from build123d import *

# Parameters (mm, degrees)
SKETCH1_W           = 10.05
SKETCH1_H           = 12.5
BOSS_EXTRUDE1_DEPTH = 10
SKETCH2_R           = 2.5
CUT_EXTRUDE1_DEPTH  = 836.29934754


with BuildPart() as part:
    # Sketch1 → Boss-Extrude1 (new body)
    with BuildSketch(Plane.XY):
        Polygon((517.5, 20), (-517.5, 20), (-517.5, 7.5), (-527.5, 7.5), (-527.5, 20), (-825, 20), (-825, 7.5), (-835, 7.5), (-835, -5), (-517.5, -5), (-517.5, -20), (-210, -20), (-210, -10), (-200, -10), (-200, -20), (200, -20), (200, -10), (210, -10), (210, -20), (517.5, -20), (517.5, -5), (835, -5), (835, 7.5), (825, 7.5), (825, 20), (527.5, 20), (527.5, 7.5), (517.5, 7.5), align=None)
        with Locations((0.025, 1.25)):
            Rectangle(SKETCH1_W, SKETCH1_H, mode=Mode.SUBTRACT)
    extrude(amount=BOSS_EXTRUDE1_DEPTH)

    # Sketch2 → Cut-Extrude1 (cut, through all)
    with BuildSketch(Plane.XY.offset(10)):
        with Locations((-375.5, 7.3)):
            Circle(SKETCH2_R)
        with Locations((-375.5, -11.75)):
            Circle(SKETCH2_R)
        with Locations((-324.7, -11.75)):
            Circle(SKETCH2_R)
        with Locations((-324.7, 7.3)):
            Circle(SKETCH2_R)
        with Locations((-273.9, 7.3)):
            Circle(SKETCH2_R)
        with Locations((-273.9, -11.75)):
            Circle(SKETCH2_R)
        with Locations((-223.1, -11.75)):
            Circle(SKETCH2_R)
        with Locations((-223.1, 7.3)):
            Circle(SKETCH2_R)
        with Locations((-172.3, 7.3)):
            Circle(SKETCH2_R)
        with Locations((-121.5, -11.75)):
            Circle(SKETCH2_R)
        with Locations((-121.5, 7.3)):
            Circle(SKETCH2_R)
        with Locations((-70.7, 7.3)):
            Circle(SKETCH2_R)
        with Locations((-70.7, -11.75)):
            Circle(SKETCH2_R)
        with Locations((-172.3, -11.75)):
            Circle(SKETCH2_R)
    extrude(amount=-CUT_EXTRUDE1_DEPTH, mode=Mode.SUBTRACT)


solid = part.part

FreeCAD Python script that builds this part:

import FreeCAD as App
import Part
import Sketcher
Q = App.Units.Quantity

doc = App.newDocument("Part")
body = doc.addObject("PartDesign::Body", "Body")

# Sketch on XY plane
sketch1 = body.newObject("Sketcher::SketchObject", "Sketch")
sketch1.AttachmentSupport = (doc.getObject("XY_Plane"), [""])
sketch1.MapMode = "FlatFace"
sketch1.addGeometry([
    Part.LineSegment(App.Vector(518, 20, 0), App.Vector(-518, 20, 0)),  # 0
    Part.LineSegment(App.Vector(-518, 20, 0), App.Vector(-518, 8, 0)),  # 1
    Part.LineSegment(App.Vector(-518, 8, 0), App.Vector(-528, 8, 0)),  # 2
    Part.LineSegment(App.Vector(-528, 8, 0), App.Vector(-528, 20, 0)),  # 3
    Part.LineSegment(App.Vector(-528, 20, 0), App.Vector(-825, 20, 0)),  # 4
    Part.LineSegment(App.Vector(-825, 20, 0), App.Vector(-825, 8, 0)),  # 5
    Part.LineSegment(App.Vector(-825, 8, 0), App.Vector(-835, 8, 0)),  # 6
    Part.LineSegment(App.Vector(-835, 8, 0), App.Vector(-835, -5, 0)),  # 7
    Part.LineSegment(App.Vector(-835, -5, 0), App.Vector(-518, -5, 0)),  # 8
    Part.LineSegment(App.Vector(-518, -5, 0), App.Vector(-518, -20, 0)),  # 9
    Part.LineSegment(App.Vector(-518, -20, 0), App.Vector(-210, -20, 0)),  # 10
    Part.LineSegment(App.Vector(-210, -20, 0), App.Vector(-210, -10, 0)),  # 11
    Part.LineSegment(App.Vector(-210, -10, 0), App.Vector(-200, -10, 0)),  # 12
    Part.LineSegment(App.Vector(-200, -10, 0), App.Vector(-200, -20, 0)),  # 13
    Part.LineSegment(App.Vector(-200, -20, 0), App.Vector(200, -20, 0)),  # 14
    Part.LineSegment(App.Vector(200, -20, 0), App.Vector(200, -10, 0)),  # 15
    Part.LineSegment(App.Vector(200, -10, 0), App.Vector(210, -10, 0)),  # 16
    Part.LineSegment(App.Vector(210, -10, 0), App.Vector(210, -20, 0)),  # 17
    Part.LineSegment(App.Vector(210, -20, 0), App.Vector(518, -20, 0)),  # 18
    Part.LineSegment(App.Vector(518, -20, 0), App.Vector(518, -5, 0)),  # 19
    Part.LineSegment(App.Vector(518, -5, 0), App.Vector(835, -5, 0)),  # 20
    Part.LineSegment(App.Vector(835, -5, 0), App.Vector(835, 8, 0)),  # 21
    Part.LineSegment(App.Vector(835, 8, 0), App.Vector(825, 8, 0)),  # 22
    Part.LineSegment(App.Vector(825, 8, 0), App.Vector(825, 20, 0)),  # 23
    Part.LineSegment(App.Vector(825, 20, 0), App.Vector(528, 20, 0)),  # 24
    Part.LineSegment(App.Vector(528, 20, 0), App.Vector(528, 8, 0)),  # 25
    Part.LineSegment(App.Vector(528, 8, 0), App.Vector(518, 8, 0)),  # 26
    Part.LineSegment(App.Vector(518, 8, 0), App.Vector(518, 20, 0)),  # 27
    Part.LineSegment(App.Vector(5, -5, 0), App.Vector(-5, -5, 0)),  # 28
    Part.LineSegment(App.Vector(-5, -5, 0), App.Vector(-5, 8, 0)),  # 29
    Part.LineSegment(App.Vector(-5, 8, 0), App.Vector(5, 8, 0)),  # 30
    Part.LineSegment(App.Vector(5, 8, 0), App.Vector(5, -5, 0)),  # 31
], False)
sketch1.addConstraint([
    Sketcher.Constraint("Coincident", 0, 2, 1, 1),
    Sketcher.Constraint("Coincident", 1, 2, 2, 1),
    Sketcher.Constraint("Coincident", 2, 2, 3, 1),
    Sketcher.Constraint("Coincident", 3, 2, 4, 1),
    Sketcher.Constraint("Coincident", 4, 2, 5, 1),
    Sketcher.Constraint("Coincident", 5, 2, 6, 1),
    Sketcher.Constraint("Coincident", 6, 2, 7, 1),
    Sketcher.Constraint("Coincident", 7, 2, 8, 1),
    Sketcher.Constraint("Coincident", 8, 2, 9, 1),
    Sketcher.Constraint("Coincident", 9, 2, 10, 1),
    Sketcher.Constraint("Coincident", 10, 2, 11, 1),
    Sketcher.Constraint("Coincident", 11, 2, 12, 1),
    Sketcher.Constraint("Coincident", 12, 2, 13, 1),
    Sketcher.Constraint("Coincident", 13, 2, 14, 1),
    Sketcher.Constraint("Coincident", 14, 2, 15, 1),
    Sketcher.Constraint("Coincident", 15, 2, 16, 1),
    Sketcher.Constraint("Coincident", 16, 2, 17, 1),
    Sketcher.Constraint("Coincident", 17, 2, 18, 1),
    Sketcher.Constraint("Coincident", 18, 2, 19, 1),
    Sketcher.Constraint("Coincident", 19, 2, 20, 1),
    Sketcher.Constraint("Coincident", 20, 2, 21, 1),
    Sketcher.Constraint("Coincident", 21, 2, 22, 1),
    Sketcher.Constraint("Coincident", 22, 2, 23, 1),
    Sketcher.Constraint("Coincident", 23, 2, 24, 1),
    Sketcher.Constraint("Coincident", 24, 2, 25, 1),
    Sketcher.Constraint("Coincident", 25, 2, 26, 1),
    Sketcher.Constraint("Coincident", 26, 2, 27, 1),
    Sketcher.Constraint("Coincident", 27, 2, 0, 1),
    Sketcher.Constraint("Coincident", 28, 2, 29, 1),
    Sketcher.Constraint("Coincident", 29, 2, 30, 1),
    Sketcher.Constraint("Coincident", 30, 2, 31, 1),
    Sketcher.Constraint("Coincident", 31, 2, 28, 1),
    Sketcher.Constraint("Horizontal", 0),
    Sketcher.Constraint("Vertical", 1),
    Sketcher.Constraint("Horizontal", 2),
    Sketcher.Constraint("Vertical", 3),
    Sketcher.Constraint("Horizontal", 4),
    Sketcher.Constraint("Vertical", 5),
    Sketcher.Constraint("Horizontal", 6),
    Sketcher.Constraint("Vertical", 7),
    Sketcher.Constraint("Horizontal", 8),
    Sketcher.Constraint("Vertical", 9),
    Sketcher.Constraint("Horizontal", 10),
    Sketcher.Constraint("Vertical", 11),
    Sketcher.Constraint("Horizontal", 12),
    Sketcher.Constraint("Vertical", 13),
    Sketcher.Constraint("Horizontal", 14),
    Sketcher.Constraint("Vertical", 15),
    Sketcher.Constraint("Horizontal", 16),
    Sketcher.Constraint("Vertical", 17),
    Sketcher.Constraint("Horizontal", 18),
    Sketcher.Constraint("Vertical", 19),
    Sketcher.Constraint("Horizontal", 20),
    Sketcher.Constraint("Vertical", 21),
    Sketcher.Constraint("Horizontal", 22),
    Sketcher.Constraint("Vertical", 23),
    Sketcher.Constraint("Horizontal", 24),
    Sketcher.Constraint("Vertical", 25),
    Sketcher.Constraint("Horizontal", 26),
    Sketcher.Constraint("Vertical", 27),
    Sketcher.Constraint("Horizontal", 28),
    Sketcher.Constraint("Vertical", 29),
    Sketcher.Constraint("Horizontal", 30),
    Sketcher.Constraint("Vertical", 31),
    Sketcher.Constraint("Symmetric", 0, 2, 18, 2, -1, 1),
    Sketcher.Constraint("Symmetric", 9, 2, 27, 2, -1, 1),
    Sketcher.Constraint("Symmetric", 12, 2, 15, 2, -2),
    Sketcher.Constraint("Symmetric", 8, 2, 19, 2, -2),
    Sketcher.Constraint("Symmetric", 6, 2, 21, 2, -2),
    Sketcher.Constraint("Symmetric", 4, 2, 23, 2, -2),
    Sketcher.Constraint("Symmetric", 2, 2, 25, 2, -2),
    Sketcher.Constraint("Horizontal", 0, 2, 3, 2),
    Sketcher.Constraint("Horizontal", 2, 2, 5, 2),
    Sketcher.Constraint("Horizontal", 10, 2, 13, 2),
    Sketcher.Constraint("Horizontal", 20, 2, 28, 2),
    Sketcher.Constraint("Horizontal", 26, 2, 29, 2),
    Sketcher.Constraint("Equal", 2, 6),
    Sketcher.Constraint("Equal", 6, 12),
    Sketcher.Constraint("Equal", 12, 16),
    Sketcher.Constraint("Equal", 5, 7),
    Sketcher.Constraint("Equal", 26, 11),
    Sketcher.Constraint("DistanceX", 0, 2, 0, 1, Q("1035 mm")),
    Sketcher.Constraint("DistanceX", 2, 2, 2, 1, Q("10 mm")),
    Sketcher.Constraint("DistanceX", 14, 1, 14, 2, Q("400 mm")),
    Sketcher.Constraint("DistanceY", 9, 2, 9, 1, Q("15 mm")),
    Sketcher.Constraint("DistanceX", 4, 2, 4, 1, Q("297.5 mm")),
    Sketcher.Constraint("DistanceY", 1, 2, 1, 1, Q("12.5 mm")),
    Sketcher.Constraint("DistanceX", 28, 2, -1, 1, Q("5 mm")),
    Sketcher.Constraint("DistanceX", 28, 2, 28, 1, Q("10.05 mm")),
])
pad1 = body.newObject("PartDesign::Pad", "Pad")
pad1.Profile = sketch1
pad1.Length = 10

# Sketch on XY plane
sketch2 = body.newObject("Sketcher::SketchObject", "Sketch001")
sketch2.AttachmentSupport = (doc.getObject("XY_Plane"), [""])
sketch2.MapMode = "FlatFace"
sketch2.AttachmentOffset = App.Placement(App.Vector(0, 0, 10), App.Rotation())
sketch2.addGeometry([
    Part.Circle(App.Vector(-375.5, 7.3, 0), App.Vector(0, 0, 1), 2.5),  # 0
    Part.Circle(App.Vector(-375.5, -11.8, 0), App.Vector(0, 0, 1), 2.5),  # 1
    Part.Circle(App.Vector(-324.7, -11.8, 0), App.Vector(0, 0, 1), 2.5),  # 2
    Part.Circle(App.Vector(-324.7, 7.3, 0), App.Vector(0, 0, 1), 2.5),  # 3
    Part.Circle(App.Vector(-273.9, 7.3, 0), App.Vector(0, 0, 1), 2.5),  # 4
    Part.Circle(App.Vector(-273.9, -11.8, 0), App.Vector(0, 0, 1), 2.5),  # 5
    Part.Circle(App.Vector(-223.1, -11.8, 0), App.Vector(0, 0, 1), 2.5),  # 6
    Part.Circle(App.Vector(-223.1, 7.3, 0), App.Vector(0, 0, 1), 2.5),  # 7
    Part.Circle(App.Vector(-172.3, 7.3, 0), App.Vector(0, 0, 1), 2.5),  # 8
    Part.Circle(App.Vector(-121.5, -11.8, 0), App.Vector(0, 0, 1), 2.5),  # 9
    Part.Circle(App.Vector(-121.5, 7.3, 0), App.Vector(0, 0, 1), 2.5),  # 10
    Part.Circle(App.Vector(-70.7, 7.3, 0), App.Vector(0, 0, 1), 2.5),  # 11
    Part.Circle(App.Vector(-70.7, -11.8, 0), App.Vector(0, 0, 1), 2.5),  # 12
    Part.Circle(App.Vector(-172.3, -11.8, 0), App.Vector(0, 0, 1), 2.5),  # 13
], False)
sketch2.addConstraint([
    Sketcher.Constraint("Equal", 0, 1),
    Sketcher.Constraint("Equal", 1, 2),
    Sketcher.Constraint("Equal", 2, 3),
    Sketcher.Constraint("Equal", 3, 4),
    Sketcher.Constraint("Equal", 4, 5),
    Sketcher.Constraint("Equal", 5, 6),
    Sketcher.Constraint("Equal", 6, 7),
    Sketcher.Constraint("Equal", 7, 8),
    Sketcher.Constraint("Equal", 8, 9),
    Sketcher.Constraint("Equal", 9, 10),
    Sketcher.Constraint("Equal", 10, 11),
    Sketcher.Constraint("Equal", 11, 12),
    Sketcher.Constraint("Equal", 12, 13),
    Sketcher.Constraint("Horizontal", 1, 3, 2, 3),
    Sketcher.Constraint("Horizontal", 0, 3, 3, 3),
    Sketcher.Constraint("Horizontal", 3, 3, 4, 3),
    Sketcher.Constraint("Horizontal", 2, 3, 5, 3),
    Sketcher.Constraint("Horizontal", 5, 3, 6, 3),
    Sketcher.Constraint("Horizontal", 4, 3, 7, 3),
    Sketcher.Constraint("Horizontal", 7, 3, 8, 3),
    Sketcher.Constraint("Horizontal", 6, 3, 9, 3),
    Sketcher.Constraint("Horizontal", 8, 3, 10, 3),
    Sketcher.Constraint("Horizontal", 10, 3, 11, 3),
    Sketcher.Constraint("Horizontal", 9, 3, 12, 3),
    Sketcher.Constraint("Horizontal", 12, 3, 13, 3),
    Sketcher.Constraint("Vertical", 0, 3, 1, 3),
    Sketcher.Constraint("Vertical", 2, 3, 3, 3),
    Sketcher.Constraint("Vertical", 4, 3, 5, 3),
    Sketcher.Constraint("Vertical", 6, 3, 7, 3),
    Sketcher.Constraint("Vertical", 9, 3, 10, 3),
    Sketcher.Constraint("Vertical", 11, 3, 12, 3),
    Sketcher.Constraint("Vertical", 8, 3, 13, 3),
    Sketcher.Constraint("Diameter", 0, Q("5 mm")),
    Sketcher.Constraint("DistanceX", 0, 3, -1, 1, Q("375.5 mm")),
    Sketcher.Constraint("DistanceY", -1, 1, 0, 3, Q("7.3 mm")),
    Sketcher.Constraint("DistanceX", 2, 3, -1, 1, Q("324.7 mm")),
    Sketcher.Constraint("DistanceX", 4, 3, -1, 1, Q("273.9 mm")),
    Sketcher.Constraint("DistanceX", 6, 3, -1, 1, Q("223.1 mm")),
    Sketcher.Constraint("DistanceX", 8, 3, -1, 1, Q("172.3 mm")),
    Sketcher.Constraint("DistanceX", 9, 3, -1, 1, Q("121.5 mm")),
    Sketcher.Constraint("DistanceX", 11, 3, -1, 1, Q("70.7 mm")),
    Sketcher.Constraint("DistanceY", 1, 3, -1, 1, Q("11.75 mm")),
])
pocket1 = body.newObject("PartDesign::Pocket", "Pocket")
pocket1.Profile = sketch2
pocket1.Type = "ThroughAll"

doc.recompute()
